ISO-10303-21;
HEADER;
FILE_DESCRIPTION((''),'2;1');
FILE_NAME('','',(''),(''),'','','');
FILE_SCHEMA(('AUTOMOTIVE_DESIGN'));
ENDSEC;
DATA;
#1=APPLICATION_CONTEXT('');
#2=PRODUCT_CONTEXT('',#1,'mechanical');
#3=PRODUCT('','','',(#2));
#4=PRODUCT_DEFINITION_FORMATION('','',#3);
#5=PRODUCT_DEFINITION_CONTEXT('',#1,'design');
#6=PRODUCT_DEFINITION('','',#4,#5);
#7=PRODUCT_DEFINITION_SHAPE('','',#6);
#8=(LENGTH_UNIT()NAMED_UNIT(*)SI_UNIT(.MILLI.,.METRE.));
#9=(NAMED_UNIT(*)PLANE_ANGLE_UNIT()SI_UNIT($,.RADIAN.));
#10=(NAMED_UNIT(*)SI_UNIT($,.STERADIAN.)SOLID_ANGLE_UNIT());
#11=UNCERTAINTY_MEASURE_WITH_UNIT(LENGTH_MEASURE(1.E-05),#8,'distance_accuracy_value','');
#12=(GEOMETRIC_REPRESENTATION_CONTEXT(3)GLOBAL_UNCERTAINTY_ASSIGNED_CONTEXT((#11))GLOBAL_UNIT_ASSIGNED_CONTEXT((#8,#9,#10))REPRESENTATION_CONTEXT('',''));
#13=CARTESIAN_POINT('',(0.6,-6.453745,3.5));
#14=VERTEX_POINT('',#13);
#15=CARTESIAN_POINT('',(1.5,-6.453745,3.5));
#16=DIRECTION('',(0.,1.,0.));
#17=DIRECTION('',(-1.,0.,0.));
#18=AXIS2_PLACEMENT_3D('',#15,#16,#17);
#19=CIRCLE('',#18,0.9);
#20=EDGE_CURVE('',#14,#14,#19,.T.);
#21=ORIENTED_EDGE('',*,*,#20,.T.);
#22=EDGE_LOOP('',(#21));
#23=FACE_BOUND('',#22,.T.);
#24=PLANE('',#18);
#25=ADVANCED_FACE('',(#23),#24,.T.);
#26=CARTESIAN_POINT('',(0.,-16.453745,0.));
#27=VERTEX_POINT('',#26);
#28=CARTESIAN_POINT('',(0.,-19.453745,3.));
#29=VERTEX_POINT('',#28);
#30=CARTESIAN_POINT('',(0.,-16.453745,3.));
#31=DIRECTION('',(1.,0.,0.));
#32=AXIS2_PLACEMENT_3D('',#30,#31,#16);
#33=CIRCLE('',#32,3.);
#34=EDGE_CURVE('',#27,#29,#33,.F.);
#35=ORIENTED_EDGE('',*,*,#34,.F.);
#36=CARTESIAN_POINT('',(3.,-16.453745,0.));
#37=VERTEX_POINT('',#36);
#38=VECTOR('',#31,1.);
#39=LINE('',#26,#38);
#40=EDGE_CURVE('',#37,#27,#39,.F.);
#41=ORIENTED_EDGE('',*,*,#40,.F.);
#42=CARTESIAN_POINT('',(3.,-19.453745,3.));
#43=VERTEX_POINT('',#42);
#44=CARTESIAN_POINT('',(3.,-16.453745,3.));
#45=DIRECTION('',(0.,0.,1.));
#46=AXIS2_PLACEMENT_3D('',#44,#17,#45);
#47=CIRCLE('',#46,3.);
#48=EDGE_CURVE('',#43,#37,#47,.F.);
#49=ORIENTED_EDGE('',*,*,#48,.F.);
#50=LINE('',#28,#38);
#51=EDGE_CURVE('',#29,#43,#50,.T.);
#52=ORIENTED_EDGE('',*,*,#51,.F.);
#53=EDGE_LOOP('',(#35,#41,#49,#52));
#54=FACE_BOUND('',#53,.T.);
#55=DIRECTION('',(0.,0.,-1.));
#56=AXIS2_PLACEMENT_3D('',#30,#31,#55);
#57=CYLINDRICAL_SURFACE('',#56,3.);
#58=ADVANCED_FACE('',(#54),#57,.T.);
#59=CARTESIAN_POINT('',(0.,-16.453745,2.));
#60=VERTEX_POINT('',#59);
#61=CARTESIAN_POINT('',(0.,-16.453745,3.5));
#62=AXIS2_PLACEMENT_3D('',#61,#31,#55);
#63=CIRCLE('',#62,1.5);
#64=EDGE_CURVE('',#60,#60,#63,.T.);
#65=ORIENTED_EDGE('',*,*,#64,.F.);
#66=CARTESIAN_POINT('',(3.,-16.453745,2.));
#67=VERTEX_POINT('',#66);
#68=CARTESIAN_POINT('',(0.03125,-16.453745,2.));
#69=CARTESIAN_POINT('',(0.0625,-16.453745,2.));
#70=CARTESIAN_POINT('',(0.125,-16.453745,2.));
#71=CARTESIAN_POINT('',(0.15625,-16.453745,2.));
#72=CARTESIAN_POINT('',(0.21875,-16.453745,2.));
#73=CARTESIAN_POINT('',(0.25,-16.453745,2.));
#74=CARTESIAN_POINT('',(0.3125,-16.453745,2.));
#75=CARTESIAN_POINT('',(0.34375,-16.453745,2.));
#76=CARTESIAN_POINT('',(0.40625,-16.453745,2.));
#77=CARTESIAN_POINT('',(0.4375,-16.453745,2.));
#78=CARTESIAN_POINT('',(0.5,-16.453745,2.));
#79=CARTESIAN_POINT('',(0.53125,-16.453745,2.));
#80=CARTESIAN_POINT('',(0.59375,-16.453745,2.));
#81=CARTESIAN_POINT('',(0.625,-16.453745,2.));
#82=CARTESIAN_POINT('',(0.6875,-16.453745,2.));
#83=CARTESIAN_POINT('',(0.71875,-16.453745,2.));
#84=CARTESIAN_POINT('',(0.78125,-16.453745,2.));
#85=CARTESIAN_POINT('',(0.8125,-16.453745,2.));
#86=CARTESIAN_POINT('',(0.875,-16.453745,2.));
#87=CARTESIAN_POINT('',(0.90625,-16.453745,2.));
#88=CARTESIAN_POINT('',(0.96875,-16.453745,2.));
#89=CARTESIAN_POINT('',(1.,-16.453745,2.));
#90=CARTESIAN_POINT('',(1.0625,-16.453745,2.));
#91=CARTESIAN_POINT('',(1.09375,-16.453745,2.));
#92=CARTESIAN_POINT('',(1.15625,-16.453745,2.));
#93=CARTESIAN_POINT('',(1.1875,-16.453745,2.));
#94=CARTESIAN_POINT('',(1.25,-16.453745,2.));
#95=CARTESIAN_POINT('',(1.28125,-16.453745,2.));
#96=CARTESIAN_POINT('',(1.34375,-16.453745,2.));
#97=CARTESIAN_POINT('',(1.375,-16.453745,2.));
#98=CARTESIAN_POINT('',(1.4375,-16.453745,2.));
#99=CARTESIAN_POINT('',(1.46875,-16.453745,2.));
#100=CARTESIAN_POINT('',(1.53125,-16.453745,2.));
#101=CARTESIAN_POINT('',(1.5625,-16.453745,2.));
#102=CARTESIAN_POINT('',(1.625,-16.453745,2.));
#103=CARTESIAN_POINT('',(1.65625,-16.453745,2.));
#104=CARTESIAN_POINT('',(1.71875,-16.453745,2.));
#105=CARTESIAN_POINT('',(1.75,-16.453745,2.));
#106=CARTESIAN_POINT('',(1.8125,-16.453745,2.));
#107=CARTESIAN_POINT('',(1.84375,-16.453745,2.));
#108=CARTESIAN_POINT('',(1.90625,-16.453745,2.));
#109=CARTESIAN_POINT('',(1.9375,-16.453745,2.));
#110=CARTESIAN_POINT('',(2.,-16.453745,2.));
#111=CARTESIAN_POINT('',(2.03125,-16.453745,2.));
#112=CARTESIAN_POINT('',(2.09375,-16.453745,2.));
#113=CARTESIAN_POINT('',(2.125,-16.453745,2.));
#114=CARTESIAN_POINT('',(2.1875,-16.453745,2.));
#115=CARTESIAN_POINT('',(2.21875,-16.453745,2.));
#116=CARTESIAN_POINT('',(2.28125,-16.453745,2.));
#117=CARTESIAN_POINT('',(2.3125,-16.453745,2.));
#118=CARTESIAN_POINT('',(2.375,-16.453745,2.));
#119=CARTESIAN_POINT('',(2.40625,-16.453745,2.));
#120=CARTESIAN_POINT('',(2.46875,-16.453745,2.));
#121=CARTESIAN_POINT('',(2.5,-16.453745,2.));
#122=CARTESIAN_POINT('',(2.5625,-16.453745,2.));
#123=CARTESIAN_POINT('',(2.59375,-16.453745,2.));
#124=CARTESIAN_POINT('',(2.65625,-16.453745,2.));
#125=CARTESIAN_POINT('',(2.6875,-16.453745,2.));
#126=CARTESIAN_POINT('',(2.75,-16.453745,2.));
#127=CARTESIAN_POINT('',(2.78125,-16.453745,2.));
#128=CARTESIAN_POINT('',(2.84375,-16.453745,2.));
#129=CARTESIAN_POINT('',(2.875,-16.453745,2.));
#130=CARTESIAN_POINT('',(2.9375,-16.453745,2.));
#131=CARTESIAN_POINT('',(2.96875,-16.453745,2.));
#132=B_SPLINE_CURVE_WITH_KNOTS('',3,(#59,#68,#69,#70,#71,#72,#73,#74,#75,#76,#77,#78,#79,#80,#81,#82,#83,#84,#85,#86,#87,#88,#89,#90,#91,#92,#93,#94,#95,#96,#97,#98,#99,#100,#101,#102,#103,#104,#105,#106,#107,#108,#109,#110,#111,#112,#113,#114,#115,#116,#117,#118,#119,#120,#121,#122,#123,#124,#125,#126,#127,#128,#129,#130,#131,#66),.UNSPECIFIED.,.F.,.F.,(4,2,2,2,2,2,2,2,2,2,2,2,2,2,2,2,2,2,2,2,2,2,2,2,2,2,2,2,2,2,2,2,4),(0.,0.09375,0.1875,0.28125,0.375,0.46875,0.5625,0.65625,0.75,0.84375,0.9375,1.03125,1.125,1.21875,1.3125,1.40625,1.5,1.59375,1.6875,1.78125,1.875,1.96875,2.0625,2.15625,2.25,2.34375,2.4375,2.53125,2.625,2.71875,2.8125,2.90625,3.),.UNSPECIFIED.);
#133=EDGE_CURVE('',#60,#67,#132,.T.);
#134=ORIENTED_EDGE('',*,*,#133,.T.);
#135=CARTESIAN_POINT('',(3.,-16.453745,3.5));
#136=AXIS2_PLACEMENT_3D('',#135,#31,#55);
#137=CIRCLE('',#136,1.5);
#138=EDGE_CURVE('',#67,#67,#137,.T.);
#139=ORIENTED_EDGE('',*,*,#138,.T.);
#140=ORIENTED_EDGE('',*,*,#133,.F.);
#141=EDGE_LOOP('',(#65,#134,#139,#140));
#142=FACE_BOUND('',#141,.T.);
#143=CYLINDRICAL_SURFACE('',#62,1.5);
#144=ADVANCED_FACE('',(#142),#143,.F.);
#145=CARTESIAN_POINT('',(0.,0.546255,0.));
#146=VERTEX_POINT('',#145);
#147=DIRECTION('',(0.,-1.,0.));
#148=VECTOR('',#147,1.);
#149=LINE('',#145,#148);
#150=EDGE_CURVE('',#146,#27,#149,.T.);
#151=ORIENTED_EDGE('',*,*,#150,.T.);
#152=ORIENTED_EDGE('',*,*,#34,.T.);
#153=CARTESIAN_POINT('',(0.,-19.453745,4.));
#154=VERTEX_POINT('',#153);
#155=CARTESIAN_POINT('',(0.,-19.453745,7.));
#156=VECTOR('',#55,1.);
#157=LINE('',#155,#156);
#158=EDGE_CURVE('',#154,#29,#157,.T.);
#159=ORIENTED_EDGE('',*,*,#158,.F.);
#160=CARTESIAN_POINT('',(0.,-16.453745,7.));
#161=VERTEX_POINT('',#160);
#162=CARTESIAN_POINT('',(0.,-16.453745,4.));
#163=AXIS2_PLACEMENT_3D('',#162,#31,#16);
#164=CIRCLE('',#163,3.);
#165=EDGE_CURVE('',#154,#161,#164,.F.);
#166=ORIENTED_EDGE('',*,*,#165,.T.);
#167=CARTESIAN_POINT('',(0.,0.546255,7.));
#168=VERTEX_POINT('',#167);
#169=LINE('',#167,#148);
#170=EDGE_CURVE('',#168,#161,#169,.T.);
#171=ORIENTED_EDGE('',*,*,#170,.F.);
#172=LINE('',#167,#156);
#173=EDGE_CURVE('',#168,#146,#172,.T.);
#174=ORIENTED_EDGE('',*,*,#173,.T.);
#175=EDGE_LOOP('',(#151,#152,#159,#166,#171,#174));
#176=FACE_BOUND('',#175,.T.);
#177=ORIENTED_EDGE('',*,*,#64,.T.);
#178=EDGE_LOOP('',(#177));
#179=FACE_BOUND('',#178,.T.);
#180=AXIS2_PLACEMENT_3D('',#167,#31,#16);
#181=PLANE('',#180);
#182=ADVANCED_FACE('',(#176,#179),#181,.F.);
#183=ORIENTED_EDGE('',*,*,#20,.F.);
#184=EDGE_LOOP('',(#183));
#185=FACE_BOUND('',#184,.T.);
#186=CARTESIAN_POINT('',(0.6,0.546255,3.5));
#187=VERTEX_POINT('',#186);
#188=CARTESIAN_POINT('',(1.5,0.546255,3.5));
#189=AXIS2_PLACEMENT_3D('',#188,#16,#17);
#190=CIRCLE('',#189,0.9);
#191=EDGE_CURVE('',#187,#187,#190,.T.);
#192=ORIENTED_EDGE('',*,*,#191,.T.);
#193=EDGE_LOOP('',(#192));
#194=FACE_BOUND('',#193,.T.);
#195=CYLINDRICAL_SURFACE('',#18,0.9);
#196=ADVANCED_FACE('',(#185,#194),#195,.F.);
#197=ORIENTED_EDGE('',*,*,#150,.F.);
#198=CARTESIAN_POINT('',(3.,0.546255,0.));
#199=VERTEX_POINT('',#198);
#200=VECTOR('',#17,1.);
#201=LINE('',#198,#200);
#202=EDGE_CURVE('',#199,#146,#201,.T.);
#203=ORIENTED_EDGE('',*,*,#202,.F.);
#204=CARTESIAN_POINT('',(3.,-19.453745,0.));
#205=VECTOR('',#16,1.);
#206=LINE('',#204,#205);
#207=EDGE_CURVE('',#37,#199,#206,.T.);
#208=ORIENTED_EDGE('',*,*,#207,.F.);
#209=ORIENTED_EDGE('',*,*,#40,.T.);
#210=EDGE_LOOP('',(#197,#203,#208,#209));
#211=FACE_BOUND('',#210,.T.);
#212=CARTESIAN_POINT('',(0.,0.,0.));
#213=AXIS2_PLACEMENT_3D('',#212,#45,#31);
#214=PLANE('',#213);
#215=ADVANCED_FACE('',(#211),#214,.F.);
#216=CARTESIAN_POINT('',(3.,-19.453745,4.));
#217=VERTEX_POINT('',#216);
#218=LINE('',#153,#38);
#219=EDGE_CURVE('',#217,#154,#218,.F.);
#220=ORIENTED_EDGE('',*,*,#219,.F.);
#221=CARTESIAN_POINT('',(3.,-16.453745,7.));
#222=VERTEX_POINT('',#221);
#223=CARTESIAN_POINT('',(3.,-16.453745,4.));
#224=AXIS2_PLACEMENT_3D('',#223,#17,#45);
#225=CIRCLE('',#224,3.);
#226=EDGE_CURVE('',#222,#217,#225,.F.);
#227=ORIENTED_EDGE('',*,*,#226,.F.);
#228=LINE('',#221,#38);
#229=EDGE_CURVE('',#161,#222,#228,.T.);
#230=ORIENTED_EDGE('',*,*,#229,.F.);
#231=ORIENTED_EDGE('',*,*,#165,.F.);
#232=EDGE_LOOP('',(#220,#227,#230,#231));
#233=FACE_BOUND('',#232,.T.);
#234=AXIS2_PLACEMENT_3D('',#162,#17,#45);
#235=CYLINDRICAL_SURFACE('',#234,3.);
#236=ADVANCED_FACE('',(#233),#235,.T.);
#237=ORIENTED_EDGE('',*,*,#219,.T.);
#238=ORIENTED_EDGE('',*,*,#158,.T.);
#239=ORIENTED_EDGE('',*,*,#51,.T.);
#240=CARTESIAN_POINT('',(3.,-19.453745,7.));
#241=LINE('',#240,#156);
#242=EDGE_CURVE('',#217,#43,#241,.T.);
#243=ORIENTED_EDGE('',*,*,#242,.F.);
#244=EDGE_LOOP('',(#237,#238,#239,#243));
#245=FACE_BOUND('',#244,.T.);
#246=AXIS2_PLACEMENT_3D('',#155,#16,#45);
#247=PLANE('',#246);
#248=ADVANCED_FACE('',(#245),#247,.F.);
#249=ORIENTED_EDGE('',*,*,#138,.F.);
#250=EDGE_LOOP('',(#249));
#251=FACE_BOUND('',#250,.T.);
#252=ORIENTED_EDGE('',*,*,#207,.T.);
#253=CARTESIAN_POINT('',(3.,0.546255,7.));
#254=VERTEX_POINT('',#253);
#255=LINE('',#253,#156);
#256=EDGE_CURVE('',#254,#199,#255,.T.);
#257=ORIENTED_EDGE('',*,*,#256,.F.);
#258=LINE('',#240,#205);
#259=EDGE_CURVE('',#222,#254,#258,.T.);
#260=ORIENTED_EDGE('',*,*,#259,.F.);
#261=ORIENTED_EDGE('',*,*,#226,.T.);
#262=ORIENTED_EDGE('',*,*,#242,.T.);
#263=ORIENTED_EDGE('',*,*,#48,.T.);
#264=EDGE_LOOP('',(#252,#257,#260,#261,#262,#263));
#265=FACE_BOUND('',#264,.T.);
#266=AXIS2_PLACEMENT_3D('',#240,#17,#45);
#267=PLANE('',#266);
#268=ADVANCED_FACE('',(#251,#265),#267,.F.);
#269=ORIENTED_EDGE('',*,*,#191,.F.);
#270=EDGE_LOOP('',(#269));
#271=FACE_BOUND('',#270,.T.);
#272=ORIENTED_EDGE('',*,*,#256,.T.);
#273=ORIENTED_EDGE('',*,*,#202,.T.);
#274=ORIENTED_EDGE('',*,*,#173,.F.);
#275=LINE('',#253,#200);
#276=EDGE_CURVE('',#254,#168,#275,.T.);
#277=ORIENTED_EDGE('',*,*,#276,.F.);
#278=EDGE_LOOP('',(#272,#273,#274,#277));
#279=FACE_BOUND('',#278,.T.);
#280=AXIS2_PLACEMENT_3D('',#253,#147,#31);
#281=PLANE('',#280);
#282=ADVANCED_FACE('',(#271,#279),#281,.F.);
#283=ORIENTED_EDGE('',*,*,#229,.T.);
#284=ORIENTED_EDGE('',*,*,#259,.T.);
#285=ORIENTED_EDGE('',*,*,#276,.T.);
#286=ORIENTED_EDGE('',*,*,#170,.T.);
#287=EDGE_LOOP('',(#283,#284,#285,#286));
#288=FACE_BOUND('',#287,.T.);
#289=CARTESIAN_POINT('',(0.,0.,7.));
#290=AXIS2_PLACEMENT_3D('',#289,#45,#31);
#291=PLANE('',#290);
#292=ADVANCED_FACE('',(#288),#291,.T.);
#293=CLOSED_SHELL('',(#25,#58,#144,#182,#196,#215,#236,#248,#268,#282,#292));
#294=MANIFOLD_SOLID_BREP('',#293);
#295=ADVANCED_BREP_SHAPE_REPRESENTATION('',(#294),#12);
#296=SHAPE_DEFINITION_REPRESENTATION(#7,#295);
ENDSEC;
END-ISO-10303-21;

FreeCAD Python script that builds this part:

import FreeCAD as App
import Part
import Sketcher

V = App.Vector
Q = App.Units.Quantity


def edges_at(feature, points):
    """Names of the edges that pass closest to the given points."""
    edges = feature.Shape.Edges
    near = lambda p: min(range(len(edges)), key=lambda i: edges[i].distToShape(Part.Vertex(*p))[0])
    return sorted({f"Edge{near(p) + 1}" for p in points})

doc = App.newDocument("Part")
body = doc.addObject("PartDesign::Body", "Body")

# Sketch on XY plane
sketch1 = doc.addObject("Sketcher::SketchObject", "Sketch")
body.addObject(sketch1)
sketch1.AttachmentSupport = (doc.XY_Plane, [""])
sketch1.MapMode = "FlatFace"
sketch1.addGeometry(Part.LineSegment(V(0, 0.546255, 0), V(0, -19.453745, 0)), False)
sketch1.addGeometry(Part.LineSegment(V(0, -19.453745, 0), V(3, -19.453745, 0)), False)
sketch1.addGeometry(Part.LineSegment(V(3, -19.453745, 0), V(3, 0.546255, 0)), False)
sketch1.addGeometry(Part.LineSegment(V(3, 0.546255, 0), V(0, 0.546255, 0)), False)
sketch1.addConstraint(Sketcher.Constraint("Coincident", 0, 2, 1, 1))
sketch1.addConstraint(Sketcher.Constraint("Coincident", 1, 2, 2, 1))
sketch1.addConstraint(Sketcher.Constraint("Coincident", 2, 2, 3, 1))
sketch1.addConstraint(Sketcher.Constraint("Coincident", 3, 2, 0, 1))
sketch1.addConstraint(Sketcher.Constraint("Vertical", 0))
sketch1.addConstraint(Sketcher.Constraint("Horizontal", 1))
sketch1.addConstraint(Sketcher.Constraint("Vertical", 2))
sketch1.addConstraint(Sketcher.Constraint("Horizontal", 3))
sketch1.addConstraint(Sketcher.Constraint("PointOnObject", 0, 2, -2))
sketch1.addConstraint(Sketcher.Constraint("DistanceX", 1, 1, 1, 2, Q("3 mm")))
sketch1.addConstraint(Sketcher.Constraint("DistanceY", 0, 2, 0, 1, Q("20 mm")))
sketch1.addConstraint(Sketcher.Constraint("DistanceY", 0, 2, -1, 1, Q("19.453745 mm")))
pad1 = doc.addObject("PartDesign::Pad", "Pad")
body.addObject(pad1)
pad1.Profile = sketch1
pad1.Length = 7

# Sketch on YZ plane
sketch2 = doc.addObject("Sketcher::SketchObject", "Sketch001")
body.addObject(sketch2)
sketch2.AttachmentSupport = (doc.YZ_Plane, [""])
sketch2.MapMode = "FlatFace"
sketch2.AttachmentOffset = App.Placement(V(0, 0, 3), App.Rotation())
sketch2.addGeometry(Part.Circle(V(-16.453745, 3.5, 0), V(0, 0, 1), 1.5), False)
sketch2.addConstraint(Sketcher.Constraint("Diameter", 0, Q("3 mm")))
sketch2.addConstraint(Sketcher.Constraint("DistanceY", -1, 1, 0, 3, Q("3.5 mm")))
sketch2.addConstraint(Sketcher.Constraint("DistanceX", 0, 3, -1, 1, Q("16.453745 mm")))
pocket1 = doc.addObject("PartDesign::Pocket", "Pocket")
body.addObject(pocket1)
pocket1.Profile = sketch2
pocket1.Type = "ThroughAll"
doc.recompute()

fillet = doc.addObject("PartDesign::Fillet", "Fillet")
body.addObject(fillet)
fillet.Base = (pocket1, edges_at(pocket1, [(1.5, -19.454, 7), (1.5, -19.454, 0)]))
fillet.Radius = 3

# Sketch on XZ plane
sketch3 = doc.addObject("Sketcher::SketchObject", "Sketch002")
body.addObject(sketch3)
sketch3.AttachmentSupport = (doc.XZ_Plane, [""])
sketch3.MapMode = "FlatFace"
sketch3.AttachmentOffset = App.Placement(V(0, 0, -0.546255), App.Rotation())
sketch3.addGeometry(Part.Circle(V(1.5, 3.5, 0), V(0, 0, 1), 0.9), False)
sketch3.addConstraint(Sketcher.Constraint("Diameter", 0, Q("1.8 mm")))
sketch3.addConstraint(Sketcher.Constraint("DistanceX", -1, 1, 0, 3, Q("1.5 mm")))
sketch3.addConstraint(Sketcher.Constraint("DistanceY", -1, 1, 0, 3, Q("3.5 mm")))
pocket2 = doc.addObject("PartDesign::Pocket", "Pocket001")
body.addObject(pocket2)
pocket2.Profile = sketch3
pocket2.Length = 7
pocket2.Reversed = True

doc.recompute()
